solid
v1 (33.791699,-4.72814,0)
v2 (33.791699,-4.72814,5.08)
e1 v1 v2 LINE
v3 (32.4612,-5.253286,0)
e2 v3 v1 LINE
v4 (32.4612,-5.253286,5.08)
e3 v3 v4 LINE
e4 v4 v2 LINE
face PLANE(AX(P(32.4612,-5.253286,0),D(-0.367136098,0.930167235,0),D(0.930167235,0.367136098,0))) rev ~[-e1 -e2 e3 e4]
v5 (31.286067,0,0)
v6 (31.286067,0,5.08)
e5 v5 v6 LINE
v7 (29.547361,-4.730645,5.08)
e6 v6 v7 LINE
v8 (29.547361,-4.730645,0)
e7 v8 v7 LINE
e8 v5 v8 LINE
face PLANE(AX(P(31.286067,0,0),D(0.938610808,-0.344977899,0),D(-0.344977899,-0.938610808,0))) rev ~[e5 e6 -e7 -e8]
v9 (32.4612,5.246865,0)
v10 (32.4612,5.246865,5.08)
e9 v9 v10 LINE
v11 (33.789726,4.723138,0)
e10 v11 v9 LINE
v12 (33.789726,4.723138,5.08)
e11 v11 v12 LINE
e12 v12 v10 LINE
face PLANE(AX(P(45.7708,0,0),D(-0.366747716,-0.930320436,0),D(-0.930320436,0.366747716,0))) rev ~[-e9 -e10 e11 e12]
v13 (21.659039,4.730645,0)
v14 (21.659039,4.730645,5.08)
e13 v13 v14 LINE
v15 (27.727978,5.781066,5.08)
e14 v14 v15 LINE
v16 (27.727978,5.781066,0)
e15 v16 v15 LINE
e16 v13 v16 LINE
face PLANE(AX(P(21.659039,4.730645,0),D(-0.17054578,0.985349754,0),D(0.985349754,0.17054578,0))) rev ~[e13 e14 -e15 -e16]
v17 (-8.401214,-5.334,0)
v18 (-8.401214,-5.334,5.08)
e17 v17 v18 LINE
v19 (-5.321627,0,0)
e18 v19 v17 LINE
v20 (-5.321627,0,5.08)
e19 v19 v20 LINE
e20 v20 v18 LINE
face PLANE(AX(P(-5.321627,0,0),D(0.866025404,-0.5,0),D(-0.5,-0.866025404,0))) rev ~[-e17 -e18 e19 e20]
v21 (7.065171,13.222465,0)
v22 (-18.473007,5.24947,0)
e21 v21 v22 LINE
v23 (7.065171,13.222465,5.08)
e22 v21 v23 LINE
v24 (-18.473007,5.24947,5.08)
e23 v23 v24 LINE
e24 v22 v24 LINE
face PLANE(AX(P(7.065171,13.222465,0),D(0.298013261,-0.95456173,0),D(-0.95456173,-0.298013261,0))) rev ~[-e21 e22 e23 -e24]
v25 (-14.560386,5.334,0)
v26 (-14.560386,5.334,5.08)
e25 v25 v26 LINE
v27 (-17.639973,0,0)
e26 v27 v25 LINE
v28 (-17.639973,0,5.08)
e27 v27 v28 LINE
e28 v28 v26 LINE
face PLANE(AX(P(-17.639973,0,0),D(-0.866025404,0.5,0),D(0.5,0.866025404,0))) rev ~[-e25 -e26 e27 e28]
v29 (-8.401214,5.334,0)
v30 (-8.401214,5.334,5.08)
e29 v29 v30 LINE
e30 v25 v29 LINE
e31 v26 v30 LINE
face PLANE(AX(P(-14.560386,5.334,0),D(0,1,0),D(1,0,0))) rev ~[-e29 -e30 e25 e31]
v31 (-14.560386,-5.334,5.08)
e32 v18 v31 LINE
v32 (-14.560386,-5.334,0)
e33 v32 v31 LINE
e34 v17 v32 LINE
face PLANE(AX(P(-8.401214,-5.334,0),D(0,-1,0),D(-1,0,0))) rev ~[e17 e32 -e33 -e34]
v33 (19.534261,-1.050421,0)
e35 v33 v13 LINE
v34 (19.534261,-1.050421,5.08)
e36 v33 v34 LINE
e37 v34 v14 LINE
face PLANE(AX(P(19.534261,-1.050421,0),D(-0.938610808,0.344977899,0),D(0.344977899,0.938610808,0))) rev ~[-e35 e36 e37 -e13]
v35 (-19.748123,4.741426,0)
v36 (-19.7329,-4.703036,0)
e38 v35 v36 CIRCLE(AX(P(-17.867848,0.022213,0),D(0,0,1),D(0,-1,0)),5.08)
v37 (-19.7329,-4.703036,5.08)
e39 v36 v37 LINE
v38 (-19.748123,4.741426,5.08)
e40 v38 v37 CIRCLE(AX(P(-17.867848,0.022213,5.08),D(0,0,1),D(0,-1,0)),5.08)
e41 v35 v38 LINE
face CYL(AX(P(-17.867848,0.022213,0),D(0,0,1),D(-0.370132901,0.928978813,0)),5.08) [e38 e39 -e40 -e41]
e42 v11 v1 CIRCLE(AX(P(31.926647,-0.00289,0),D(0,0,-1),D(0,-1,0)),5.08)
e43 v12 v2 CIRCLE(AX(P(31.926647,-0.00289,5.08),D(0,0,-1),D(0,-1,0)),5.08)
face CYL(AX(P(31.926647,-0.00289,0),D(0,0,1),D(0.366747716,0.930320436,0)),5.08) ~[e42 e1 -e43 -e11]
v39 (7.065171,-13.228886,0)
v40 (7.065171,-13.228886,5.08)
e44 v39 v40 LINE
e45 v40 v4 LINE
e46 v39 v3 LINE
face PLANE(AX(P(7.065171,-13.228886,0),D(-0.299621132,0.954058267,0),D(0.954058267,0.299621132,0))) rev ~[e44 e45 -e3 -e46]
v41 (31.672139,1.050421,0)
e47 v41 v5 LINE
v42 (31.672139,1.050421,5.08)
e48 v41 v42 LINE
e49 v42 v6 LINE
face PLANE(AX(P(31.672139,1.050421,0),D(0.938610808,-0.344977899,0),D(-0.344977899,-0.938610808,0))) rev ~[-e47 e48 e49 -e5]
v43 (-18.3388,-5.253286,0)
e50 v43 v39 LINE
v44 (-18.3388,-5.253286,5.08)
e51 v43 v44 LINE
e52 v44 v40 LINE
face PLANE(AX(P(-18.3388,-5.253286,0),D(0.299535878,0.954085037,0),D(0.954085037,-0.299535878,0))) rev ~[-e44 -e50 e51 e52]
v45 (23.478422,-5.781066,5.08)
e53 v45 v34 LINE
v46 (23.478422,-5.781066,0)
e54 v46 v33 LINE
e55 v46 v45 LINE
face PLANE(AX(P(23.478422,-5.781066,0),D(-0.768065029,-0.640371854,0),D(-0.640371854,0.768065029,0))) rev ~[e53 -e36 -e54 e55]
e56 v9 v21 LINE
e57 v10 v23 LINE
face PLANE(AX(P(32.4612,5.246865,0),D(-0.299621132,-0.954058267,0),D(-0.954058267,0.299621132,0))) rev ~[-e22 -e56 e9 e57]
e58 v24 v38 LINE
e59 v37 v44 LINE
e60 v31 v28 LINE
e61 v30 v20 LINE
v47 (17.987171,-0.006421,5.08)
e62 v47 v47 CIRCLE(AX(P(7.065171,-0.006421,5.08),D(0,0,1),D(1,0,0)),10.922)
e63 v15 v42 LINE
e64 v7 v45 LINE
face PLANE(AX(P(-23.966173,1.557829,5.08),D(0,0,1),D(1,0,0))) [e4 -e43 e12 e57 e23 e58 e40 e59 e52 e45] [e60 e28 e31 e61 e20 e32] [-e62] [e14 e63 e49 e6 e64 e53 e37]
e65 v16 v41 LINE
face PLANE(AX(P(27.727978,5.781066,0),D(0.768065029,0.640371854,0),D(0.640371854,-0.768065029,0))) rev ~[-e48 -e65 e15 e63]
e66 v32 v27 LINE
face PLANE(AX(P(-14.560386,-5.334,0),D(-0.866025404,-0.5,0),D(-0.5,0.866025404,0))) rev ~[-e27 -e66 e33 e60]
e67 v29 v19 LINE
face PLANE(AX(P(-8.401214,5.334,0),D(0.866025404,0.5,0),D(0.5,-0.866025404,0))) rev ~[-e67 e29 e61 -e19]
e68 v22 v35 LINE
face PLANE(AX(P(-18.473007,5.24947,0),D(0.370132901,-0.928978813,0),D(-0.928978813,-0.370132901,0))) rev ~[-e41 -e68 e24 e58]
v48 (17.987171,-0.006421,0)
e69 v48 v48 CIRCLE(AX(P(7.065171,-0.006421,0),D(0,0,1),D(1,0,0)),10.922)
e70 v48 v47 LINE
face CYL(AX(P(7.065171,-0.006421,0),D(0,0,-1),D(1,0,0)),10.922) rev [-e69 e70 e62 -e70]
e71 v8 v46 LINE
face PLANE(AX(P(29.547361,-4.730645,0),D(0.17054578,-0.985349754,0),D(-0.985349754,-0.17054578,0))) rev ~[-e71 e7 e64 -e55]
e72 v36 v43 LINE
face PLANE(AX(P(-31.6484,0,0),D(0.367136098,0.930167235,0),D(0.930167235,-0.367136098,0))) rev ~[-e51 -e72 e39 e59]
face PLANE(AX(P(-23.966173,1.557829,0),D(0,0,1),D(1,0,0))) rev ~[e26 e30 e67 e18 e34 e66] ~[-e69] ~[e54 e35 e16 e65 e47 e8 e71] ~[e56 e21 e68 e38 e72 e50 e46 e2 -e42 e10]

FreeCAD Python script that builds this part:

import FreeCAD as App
import Part
import Sketcher
Q = App.Units.Quantity


def edges_at(feature, points):
    """Names of the edges that pass closest to the given points."""
    edges = feature.Shape.Edges
    near = lambda p: min(range(len(edges)), key=lambda i: edges[i].distToShape(Part.Vertex(*p))[0])
    return sorted({f"Edge{near(p) + 1}" for p in points})

doc = App.newDocument("Part")
body = doc.addObject("PartDesign::Body", "Body")

sketch1 = body.newObject("Sketcher::SketchObject", "Sketch")
sketch1.AttachmentSupport = (doc.getObject("XY_Plane"), [""])
sketch1.MapMode = "FlatFace"
sketch1.addGeometry([
    Part.LineSegment(App.Vector(-18.473007, 5.24947, 0), App.Vector(-31.6484, 0, 0)),
    Part.LineSegment(App.Vector(-31.6484, 0, 0), App.Vector(-18.3388, -5.253286, 0)),
    Part.LineSegment(App.Vector(-18.3388, -5.253286, 0), App.Vector(7.065171, -13.228886, 0)),
    Part.LineSegment(App.Vector(7.065171, -13.228886, 0), App.Vector(32.4612, -5.253286, 0)),
    Part.LineSegment(App.Vector(32.4612, -5.253286, 0), App.Vector(45.7708, 0, 0)),
    Part.LineSegment(App.Vector(45.7708, 0, 0), App.Vector(32.4612, 5.246865, 0)),
    Part.LineSegment(App.Vector(32.4612, 5.246865, 0), App.Vector(7.065171, 13.222465, 0)),
    Part.LineSegment(App.Vector(7.065171, 13.222465, 0), App.Vector(-18.473007, 5.24947, 0)),
    Part.LineSegment(App.Vector(-8.401214, -5.334, 0), App.Vector(-14.560386, -5.334, 0)),
    Part.LineSegment(App.Vector(-14.560386, -5.334, 0), App.Vector(-17.639973, 0, 0)),
    Part.LineSegment(App.Vector(-17.639973, 0, 0), App.Vector(-14.560386, 5.334, 0)),
    Part.LineSegment(App.Vector(-14.560386, 5.334, 0), App.Vector(-8.401214, 5.334, 0)),
    Part.LineSegment(App.Vector(-8.401214, 5.334, 0), App.Vector(-5.321627, 0, 0)),
    Part.LineSegment(App.Vector(-5.321627, 0, 0), App.Vector(-8.401214, -5.334, 0)),
    Part.Circle(App.Vector(7.065171, -0.006421, 0), App.Vector(0, 0, 1), 10.922),
    Part.LineSegment(App.Vector(27.727978, 5.781066, 0), App.Vector(31.672139, 1.050421, 0)),
    Part.LineSegment(App.Vector(31.672139, 1.050421, 0), App.Vector(31.286067, 0, 0)),
    Part.LineSegment(App.Vector(31.286067, 0, 0), App.Vector(29.547361, -4.730645, 0)),
    Part.LineSegment(App.Vector(29.547361, -4.730645, 0), App.Vector(23.478422, -5.781066, 0)),
    Part.LineSegment(App.Vector(23.478422, -5.781066, 0), App.Vector(19.534261, -1.050421, 0)),
    Part.LineSegment(App.Vector(19.534261, -1.050421, 0), App.Vector(21.659039, 4.730645, 0)),
    Part.LineSegment(App.Vector(21.659039, 4.730645, 0), App.Vector(27.727978, 5.781066, 0)),
], False)
sketch1.addConstraint([
    Sketcher.Constraint("Coincident", 0, 2, 1, 1),
    Sketcher.Constraint("Coincident", 1, 2, 2, 1),
    Sketcher.Constraint("Coincident", 2, 2, 3, 1),
    Sketcher.Constraint("Coincident", 3, 2, 4, 1),
    Sketcher.Constraint("Coincident", 4, 2, 5, 1),
    Sketcher.Constraint("Coincident", 5, 2, 6, 1),
    Sketcher.Constraint("Coincident", 6, 2, 7, 1),
    Sketcher.Constraint("Coincident", 7, 2, 0, 1),
    Sketcher.Constraint("Coincident", 8, 2, 9, 1),
    Sketcher.Constraint("Coincident", 9, 2, 10, 1),
    Sketcher.Constraint("Coincident", 10, 2, 11, 1),
    Sketcher.Constraint("Coincident", 11, 2, 12, 1),
    Sketcher.Constraint("Coincident", 12, 2, 13, 1),
    Sketcher.Constraint("Coincident", 13, 2, 8, 1),
    Sketcher.Constraint("Coincident", 15, 2, 16, 1),
    Sketcher.Constraint("Coincident", 16, 2, 17, 1),
    Sketcher.Constraint("Coincident", 17, 2, 18, 1),
    Sketcher.Constraint("Coincident", 18, 2, 19, 1),
    Sketcher.Constraint("Coincident", 19, 2, 20, 1),
    Sketcher.Constraint("Coincident", 20, 2, 21, 1),
    Sketcher.Constraint("Coincident", 21, 2, 15, 1),
    Sketcher.Constraint("Horizontal", 8),
    Sketcher.Constraint("Horizontal", 11),
    Sketcher.Constraint("Symmetric", 8, 2, 10, 2, -1),
    Sketcher.Constraint("PointOnObject", 0, 2, -1),
    Sketcher.Constraint("PointOnObject", 4, 2, -1),
    Sketcher.Constraint("PointOnObject", 9, 2, -1),
    Sketcher.Constraint("PointOnObject", 12, 2, -1),
    Sketcher.Constraint("PointOnObject", 16, 2, -1),
    Sketcher.Constraint("Parallel", 9, 12),
    Sketcher.Constraint("Parallel", 10, 13),
    Sketcher.Constraint("Parallel", 16, 17),
    Sketcher.Constraint("Parallel", 15, 19),
    Sketcher.Constraint("Parallel", 17, 20),
    Sketcher.Constraint("Parallel", 18, 21),
    Sketcher.Constraint("Horizontal", 1, 2, 3, 2),
    Sketcher.Constraint("Vertical", 14, 3, 2, 2),
    Sketcher.Constraint("Vertical", 3, 2, 5, 2),
    Sketcher.Constraint("Vertical", 2, 2, 6, 2),
    Sketcher.Constraint("Equal", 1, 4),
    Sketcher.Constraint("Equal", 3, 6),
    Sketcher.Constraint("Equal", 13, 15),
    Sketcher.Constraint("Equal", 15, 18),
    Sketcher.Constraint("Equal", 18, 19),
    Sketcher.Constraint("Equal", 19, 20),
    Sketcher.Constraint("Diameter", 14, Q("0.86 in")),
    Sketcher.Constraint("Angle", 9, Q("120 deg")),
    Sketcher.Constraint("DistanceX", 1, 2, 3, 2, Q("2 in")),
    Sketcher.Constraint("DistanceY", 8, 2, -1, 1, Q("0.21 in")),
    Sketcher.Constraint("DistanceX", 0, 2, -1, 1, Q("1.246 in")),
    Sketcher.Constraint("DistanceX", 1, 2, -1, 1, Q("0.722 in")),
    Sketcher.Constraint("DistanceY", 2, 2, 1, 2, Q("0.314 in")),
    Sketcher.Constraint("DistanceX", 8, 2, 14, 3, Q("0.8513999 in")),
    Sketcher.Constraint("DistanceX", 19, 2, 17, 2, 10.0131),
    Sketcher.Constraint("DistanceY", 19, 2, 14, 3, 1.043999),
    Sketcher.Constraint("DistanceY", 5, 2, 21, 2, 0.534201),
    Sketcher.Constraint("Distance", 3, 26.61895),
    Sketcher.Constraint("Distance", 5, 14.306468),
    Sketcher.Constraint("Distance", 17, 5.04005),
    Sketcher.Constraint("DistanceX", 8, 2, 8, 1, 6.159173),
    Sketcher.Constraint("DistanceY", 14, 3, -1, 1, 0.006421),
    Sketcher.Constraint("DistanceY", -1, 1, 7, 2, 5.24947),
    Sketcher.Constraint("DistanceX", -1, 1, 15, 2, 31.672139),
    Sketcher.Constraint("DistanceY", 3, 2, 5, 2, 10.500151),
    Sketcher.Constraint("DistanceX", 7, 2, 8, 2, 3.912621),
])
pad1 = body.newObject("PartDesign::Pad", "Pad")
pad1.Profile = sketch1
pad1.Length = Q("0.2 in")
doc.recompute()

fillet = body.newObject("PartDesign::Fillet", "Fillet")
fillet.Base = (pad1, edges_at(pad1, [(-31.648, 0, 2.54), (45.771, 0, 2.54)]))
fillet.Radius = Q("0.2 in")

doc.recompute()
